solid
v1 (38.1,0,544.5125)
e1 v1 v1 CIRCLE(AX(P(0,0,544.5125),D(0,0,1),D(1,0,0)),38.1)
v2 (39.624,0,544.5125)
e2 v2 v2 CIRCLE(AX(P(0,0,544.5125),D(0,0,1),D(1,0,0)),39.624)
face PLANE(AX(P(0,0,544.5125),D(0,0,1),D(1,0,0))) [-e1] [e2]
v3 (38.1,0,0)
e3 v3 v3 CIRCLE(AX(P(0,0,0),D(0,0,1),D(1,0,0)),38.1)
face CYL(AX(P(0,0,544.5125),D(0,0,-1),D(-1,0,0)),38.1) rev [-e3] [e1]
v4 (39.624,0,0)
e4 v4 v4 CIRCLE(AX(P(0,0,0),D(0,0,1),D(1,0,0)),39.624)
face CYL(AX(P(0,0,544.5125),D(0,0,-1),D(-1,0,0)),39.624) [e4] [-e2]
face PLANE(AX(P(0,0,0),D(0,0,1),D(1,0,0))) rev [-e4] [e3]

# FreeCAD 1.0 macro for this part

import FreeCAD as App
import Part
import Sketcher
from FreeCAD import Vector
Q = App.Units.Quantity

doc = App.newDocument("Part")
body = doc.addObject("PartDesign::Body", "Body")

sketch1 = doc.addObject("Sketcher::SketchObject", "Sketch")
body.addObject(sketch1)
sketch1.AttachmentSupport = (doc.XY_Plane, [""])
sketch1.MapMode = "FlatFace"
sketch1.addGeometry([
    Part.Circle(Vector(0, 0, 0), Vector(0, 0, 1), 40),
    Part.Circle(Vector(0, 0, 0), Vector(0, 0, 1), 38),
], False)
sketch1.addConstraint([
    Sketcher.Constraint("Coincident", 0, 3, -1, 1),
    Sketcher.Constraint("Coincident", 1, 3, -1, 1),
    Sketcher.Constraint("Diameter", 1, Q("3 in")),
    Sketcher.Constraint("Diameter", 0, Q("3.12 in")),
])
pad1 = doc.addObject("PartDesign::Pad", "Pad")
body.addObject(pad1)
pad1.Profile = sketch1
pad1.Length = Q("21.4375 in")

doc.recompute()
